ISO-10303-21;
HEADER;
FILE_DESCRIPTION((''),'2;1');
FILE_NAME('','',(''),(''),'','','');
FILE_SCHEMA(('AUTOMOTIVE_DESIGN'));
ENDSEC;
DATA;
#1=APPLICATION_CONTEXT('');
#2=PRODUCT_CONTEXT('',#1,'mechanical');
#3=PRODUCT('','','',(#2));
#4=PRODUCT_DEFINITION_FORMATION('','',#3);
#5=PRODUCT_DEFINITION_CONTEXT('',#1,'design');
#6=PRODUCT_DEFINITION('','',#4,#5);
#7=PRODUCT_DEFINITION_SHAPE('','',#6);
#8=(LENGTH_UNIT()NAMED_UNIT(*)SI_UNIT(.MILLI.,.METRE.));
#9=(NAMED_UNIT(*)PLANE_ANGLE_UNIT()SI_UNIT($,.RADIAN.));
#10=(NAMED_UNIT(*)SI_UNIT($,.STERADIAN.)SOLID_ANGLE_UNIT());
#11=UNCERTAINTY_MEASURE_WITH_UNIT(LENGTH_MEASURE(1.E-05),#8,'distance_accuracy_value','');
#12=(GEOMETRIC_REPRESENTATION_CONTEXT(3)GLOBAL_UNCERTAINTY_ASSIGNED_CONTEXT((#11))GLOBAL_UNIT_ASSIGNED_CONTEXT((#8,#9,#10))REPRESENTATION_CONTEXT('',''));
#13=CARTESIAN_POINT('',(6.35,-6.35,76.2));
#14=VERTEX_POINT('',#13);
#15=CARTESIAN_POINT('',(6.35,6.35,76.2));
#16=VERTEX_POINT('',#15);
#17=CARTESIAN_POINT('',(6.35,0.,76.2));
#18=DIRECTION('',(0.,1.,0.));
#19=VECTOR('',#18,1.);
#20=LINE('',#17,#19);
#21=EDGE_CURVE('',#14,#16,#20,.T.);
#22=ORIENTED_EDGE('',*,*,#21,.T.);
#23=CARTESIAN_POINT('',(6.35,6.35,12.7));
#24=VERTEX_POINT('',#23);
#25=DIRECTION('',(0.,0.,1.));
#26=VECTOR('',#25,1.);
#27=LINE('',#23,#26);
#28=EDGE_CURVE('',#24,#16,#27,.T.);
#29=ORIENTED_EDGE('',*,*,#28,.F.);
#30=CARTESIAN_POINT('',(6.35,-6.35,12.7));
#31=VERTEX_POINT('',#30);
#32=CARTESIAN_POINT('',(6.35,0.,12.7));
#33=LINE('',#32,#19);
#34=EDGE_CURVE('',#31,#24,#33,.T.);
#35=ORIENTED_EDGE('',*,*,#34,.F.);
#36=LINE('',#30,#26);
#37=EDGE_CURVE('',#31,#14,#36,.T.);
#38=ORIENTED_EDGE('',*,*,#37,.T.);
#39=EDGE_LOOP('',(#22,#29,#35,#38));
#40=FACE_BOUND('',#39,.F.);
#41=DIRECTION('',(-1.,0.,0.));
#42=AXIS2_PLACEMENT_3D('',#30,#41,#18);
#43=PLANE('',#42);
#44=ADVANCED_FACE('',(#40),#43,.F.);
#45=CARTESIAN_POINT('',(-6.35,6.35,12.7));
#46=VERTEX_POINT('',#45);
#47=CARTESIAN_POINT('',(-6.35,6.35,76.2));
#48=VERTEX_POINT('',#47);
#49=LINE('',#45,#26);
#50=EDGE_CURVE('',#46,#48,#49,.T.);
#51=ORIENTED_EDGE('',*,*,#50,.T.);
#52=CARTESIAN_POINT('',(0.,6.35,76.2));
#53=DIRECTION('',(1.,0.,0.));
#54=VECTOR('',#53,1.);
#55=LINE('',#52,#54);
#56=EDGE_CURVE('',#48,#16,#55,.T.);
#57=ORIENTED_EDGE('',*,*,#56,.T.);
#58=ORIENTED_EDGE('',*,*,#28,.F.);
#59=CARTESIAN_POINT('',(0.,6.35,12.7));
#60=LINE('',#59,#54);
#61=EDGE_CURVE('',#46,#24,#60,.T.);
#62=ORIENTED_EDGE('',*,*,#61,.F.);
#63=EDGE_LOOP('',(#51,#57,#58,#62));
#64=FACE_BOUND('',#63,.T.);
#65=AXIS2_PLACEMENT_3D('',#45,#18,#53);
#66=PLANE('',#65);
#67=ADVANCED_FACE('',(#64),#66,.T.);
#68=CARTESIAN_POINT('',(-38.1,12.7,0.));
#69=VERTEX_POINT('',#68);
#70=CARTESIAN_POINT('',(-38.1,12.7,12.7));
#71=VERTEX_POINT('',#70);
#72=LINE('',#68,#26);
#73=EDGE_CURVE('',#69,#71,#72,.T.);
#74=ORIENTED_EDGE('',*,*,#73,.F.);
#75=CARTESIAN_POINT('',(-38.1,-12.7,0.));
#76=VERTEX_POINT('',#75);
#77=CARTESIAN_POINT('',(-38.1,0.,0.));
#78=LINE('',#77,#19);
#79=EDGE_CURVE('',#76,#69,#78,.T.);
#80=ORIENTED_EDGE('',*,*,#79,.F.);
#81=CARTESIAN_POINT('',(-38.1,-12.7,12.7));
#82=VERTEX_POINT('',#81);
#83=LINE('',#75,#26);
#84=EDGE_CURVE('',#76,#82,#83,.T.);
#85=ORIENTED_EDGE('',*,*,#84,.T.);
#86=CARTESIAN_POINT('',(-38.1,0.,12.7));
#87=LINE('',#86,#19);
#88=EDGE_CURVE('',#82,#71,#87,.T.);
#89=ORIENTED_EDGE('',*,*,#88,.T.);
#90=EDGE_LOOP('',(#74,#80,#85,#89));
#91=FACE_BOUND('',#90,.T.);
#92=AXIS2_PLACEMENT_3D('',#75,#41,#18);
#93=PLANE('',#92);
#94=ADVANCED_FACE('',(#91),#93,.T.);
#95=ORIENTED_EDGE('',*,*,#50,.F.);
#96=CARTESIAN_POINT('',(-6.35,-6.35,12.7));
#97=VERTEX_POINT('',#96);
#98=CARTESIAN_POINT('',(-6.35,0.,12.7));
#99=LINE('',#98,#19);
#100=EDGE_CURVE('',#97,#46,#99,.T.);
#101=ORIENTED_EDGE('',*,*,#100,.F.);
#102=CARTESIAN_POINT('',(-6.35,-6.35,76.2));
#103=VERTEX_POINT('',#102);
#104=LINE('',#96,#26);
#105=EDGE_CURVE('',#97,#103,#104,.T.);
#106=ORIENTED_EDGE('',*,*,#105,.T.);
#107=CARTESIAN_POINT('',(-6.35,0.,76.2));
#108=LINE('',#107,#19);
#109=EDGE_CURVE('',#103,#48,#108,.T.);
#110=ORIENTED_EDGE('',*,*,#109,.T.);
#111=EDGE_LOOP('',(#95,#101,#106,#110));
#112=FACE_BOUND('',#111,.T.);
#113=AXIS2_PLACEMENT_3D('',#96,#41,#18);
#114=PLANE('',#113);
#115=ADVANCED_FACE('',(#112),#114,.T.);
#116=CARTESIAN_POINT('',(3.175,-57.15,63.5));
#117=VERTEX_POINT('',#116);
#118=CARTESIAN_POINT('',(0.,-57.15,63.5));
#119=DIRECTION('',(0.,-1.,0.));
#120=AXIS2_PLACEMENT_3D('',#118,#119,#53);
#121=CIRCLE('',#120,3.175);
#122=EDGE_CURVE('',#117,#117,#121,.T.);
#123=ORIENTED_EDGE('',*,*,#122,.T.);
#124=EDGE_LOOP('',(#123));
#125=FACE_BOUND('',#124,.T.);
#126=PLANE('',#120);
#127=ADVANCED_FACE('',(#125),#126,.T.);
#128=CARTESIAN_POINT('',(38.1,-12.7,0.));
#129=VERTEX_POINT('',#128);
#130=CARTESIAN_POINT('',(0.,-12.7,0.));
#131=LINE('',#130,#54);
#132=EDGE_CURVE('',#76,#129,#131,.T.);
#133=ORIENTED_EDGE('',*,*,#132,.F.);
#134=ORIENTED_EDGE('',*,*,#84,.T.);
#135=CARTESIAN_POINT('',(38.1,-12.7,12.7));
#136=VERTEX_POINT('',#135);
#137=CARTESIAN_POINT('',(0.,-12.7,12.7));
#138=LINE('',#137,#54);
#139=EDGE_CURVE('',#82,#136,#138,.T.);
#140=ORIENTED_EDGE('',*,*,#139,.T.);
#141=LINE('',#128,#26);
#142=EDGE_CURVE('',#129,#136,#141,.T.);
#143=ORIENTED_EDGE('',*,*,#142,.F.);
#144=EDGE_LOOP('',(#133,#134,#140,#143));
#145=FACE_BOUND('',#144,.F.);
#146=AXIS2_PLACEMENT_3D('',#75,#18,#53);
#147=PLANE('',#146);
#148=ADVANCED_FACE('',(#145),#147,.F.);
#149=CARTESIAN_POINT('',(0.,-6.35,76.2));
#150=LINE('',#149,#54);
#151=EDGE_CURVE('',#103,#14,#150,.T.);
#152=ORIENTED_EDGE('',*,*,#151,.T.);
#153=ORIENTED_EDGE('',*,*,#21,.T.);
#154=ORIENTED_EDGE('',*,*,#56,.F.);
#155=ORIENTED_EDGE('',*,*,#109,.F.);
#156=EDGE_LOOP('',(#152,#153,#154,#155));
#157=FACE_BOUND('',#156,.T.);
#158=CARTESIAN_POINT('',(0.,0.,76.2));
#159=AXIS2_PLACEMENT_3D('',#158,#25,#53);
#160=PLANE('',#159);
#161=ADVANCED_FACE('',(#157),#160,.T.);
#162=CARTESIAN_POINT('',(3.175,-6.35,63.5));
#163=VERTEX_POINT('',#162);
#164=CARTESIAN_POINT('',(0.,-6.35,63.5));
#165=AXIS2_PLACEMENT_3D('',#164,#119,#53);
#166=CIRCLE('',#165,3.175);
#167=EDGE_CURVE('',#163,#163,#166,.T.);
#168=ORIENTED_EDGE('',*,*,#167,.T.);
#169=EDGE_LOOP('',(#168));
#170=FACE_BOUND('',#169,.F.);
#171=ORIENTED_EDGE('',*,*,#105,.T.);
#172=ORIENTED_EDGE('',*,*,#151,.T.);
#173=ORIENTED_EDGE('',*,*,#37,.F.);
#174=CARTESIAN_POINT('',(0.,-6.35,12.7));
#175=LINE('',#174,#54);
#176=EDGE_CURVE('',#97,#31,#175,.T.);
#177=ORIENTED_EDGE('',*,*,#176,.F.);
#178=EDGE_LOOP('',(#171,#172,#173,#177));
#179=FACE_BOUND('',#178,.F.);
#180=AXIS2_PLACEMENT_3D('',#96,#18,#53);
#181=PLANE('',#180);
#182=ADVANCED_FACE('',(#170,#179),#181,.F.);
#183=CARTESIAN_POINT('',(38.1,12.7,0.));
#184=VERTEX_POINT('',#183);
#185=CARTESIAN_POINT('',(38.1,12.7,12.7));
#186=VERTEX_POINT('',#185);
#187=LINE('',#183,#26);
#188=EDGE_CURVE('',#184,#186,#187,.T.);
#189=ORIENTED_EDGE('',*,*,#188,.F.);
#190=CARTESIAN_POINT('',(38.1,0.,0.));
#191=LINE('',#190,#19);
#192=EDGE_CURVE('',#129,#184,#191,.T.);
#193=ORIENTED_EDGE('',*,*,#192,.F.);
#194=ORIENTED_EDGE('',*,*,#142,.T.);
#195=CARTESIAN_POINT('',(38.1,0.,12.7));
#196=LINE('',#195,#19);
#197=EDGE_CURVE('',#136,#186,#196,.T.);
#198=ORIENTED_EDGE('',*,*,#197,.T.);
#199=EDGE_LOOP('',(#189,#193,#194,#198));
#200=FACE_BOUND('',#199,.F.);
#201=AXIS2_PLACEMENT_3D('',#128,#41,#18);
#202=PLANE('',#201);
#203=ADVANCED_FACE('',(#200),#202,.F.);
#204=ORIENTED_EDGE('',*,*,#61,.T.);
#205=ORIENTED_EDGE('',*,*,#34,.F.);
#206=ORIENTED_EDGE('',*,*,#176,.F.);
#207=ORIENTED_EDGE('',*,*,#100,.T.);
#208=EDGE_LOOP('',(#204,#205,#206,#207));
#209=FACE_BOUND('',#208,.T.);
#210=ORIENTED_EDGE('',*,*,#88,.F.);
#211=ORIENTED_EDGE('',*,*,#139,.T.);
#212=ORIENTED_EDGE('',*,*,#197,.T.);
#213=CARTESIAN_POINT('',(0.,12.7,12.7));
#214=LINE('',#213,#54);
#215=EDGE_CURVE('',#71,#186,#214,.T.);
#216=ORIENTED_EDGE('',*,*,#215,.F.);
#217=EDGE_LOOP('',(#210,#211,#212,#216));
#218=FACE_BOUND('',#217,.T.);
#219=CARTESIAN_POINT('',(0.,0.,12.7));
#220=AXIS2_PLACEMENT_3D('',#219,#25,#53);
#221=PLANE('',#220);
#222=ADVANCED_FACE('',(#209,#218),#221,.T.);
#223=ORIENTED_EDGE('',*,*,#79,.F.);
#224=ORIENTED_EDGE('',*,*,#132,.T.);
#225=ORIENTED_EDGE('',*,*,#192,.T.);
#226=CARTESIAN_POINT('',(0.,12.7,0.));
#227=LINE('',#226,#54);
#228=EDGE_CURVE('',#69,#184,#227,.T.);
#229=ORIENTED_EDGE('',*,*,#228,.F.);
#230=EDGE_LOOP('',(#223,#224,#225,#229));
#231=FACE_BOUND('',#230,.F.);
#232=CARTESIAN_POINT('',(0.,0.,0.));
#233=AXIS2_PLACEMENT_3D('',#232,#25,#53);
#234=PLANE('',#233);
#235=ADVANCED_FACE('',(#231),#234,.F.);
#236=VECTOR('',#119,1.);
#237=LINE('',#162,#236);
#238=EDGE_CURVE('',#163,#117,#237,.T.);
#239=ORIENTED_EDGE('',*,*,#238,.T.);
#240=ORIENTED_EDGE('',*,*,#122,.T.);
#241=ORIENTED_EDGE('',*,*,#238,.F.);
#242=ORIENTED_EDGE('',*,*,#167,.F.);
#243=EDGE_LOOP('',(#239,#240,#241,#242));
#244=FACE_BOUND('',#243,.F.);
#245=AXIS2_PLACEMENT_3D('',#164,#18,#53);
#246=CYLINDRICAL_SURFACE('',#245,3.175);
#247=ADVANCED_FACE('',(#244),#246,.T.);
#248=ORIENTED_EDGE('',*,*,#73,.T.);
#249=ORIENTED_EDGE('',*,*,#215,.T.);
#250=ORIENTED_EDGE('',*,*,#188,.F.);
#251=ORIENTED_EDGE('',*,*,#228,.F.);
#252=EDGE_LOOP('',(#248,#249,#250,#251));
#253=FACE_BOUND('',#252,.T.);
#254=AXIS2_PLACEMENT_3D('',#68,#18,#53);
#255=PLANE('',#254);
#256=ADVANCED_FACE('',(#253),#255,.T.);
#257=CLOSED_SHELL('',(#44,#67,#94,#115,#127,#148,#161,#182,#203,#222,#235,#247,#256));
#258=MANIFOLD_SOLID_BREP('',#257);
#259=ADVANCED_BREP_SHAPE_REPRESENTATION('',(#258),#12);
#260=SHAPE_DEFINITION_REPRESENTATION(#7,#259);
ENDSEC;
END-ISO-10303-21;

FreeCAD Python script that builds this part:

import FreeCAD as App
import Part
import Sketcher

V = App.Vector
Q = App.Units.Quantity

doc = App.newDocument("Part")
body = doc.addObject("PartDesign::Body", "Body")

# Sketch on XY plane
sketch1 = body.newObject("Sketcher::SketchObject", "Sketch")
sketch1.AttachmentSupport = (doc.getObject("XY_Plane"), [""])
sketch1.MapMode = "FlatFace"
sketch1.addGeometry(Part.LineSegment(V(-38, 13, 0), V(-38, -13, 0)), False)
sketch1.addGeometry(Part.LineSegment(V(-38, -13, 0), V(38, -13, 0)), False)
sketch1.addGeometry(Part.LineSegment(V(38, -13, 0), V(38, 13, 0)), False)
sketch1.addGeometry(Part.LineSegment(V(38, 13, 0), V(-38, 13, 0)), False)
sketch1.addConstraint(Sketcher.Constraint("Coincident", 0, 2, 1, 1))
sketch1.addConstraint(Sketcher.Constraint("Coincident", 1, 2, 2, 1))
sketch1.addConstraint(Sketcher.Constraint("Coincident", 2, 2, 3, 1))
sketch1.addConstraint(Sketcher.Constraint("Coincident", 3, 2, 0, 1))
sketch1.addConstraint(Sketcher.Constraint("Vertical", 0))
sketch1.addConstraint(Sketcher.Constraint("Horizontal", 1))
sketch1.addConstraint(Sketcher.Constraint("Vertical", 2))
sketch1.addConstraint(Sketcher.Constraint("Horizontal", 3))
sketch1.addConstraint(Sketcher.Constraint("Symmetric", 0, 2, 2, 2, -1, 1))
sketch1.addConstraint(Sketcher.Constraint("DistanceX", 1, 1, 1, 2, Q("3 in")))
sketch1.addConstraint(Sketcher.Constraint("DistanceY", 0, 2, 0, 1, Q("1 in")))
pad1 = body.newObject("PartDesign::Pad", "Pad")
pad1.Profile = sketch1
pad1.Length = Q("0.5 in")

# Sketch on XY plane
sketch2 = body.newObject("Sketcher::SketchObject", "Sketch001")
sketch2.AttachmentSupport = (doc.getObject("XY_Plane"), [""])
sketch2.MapMode = "FlatFace"
sketch2.AttachmentOffset = App.Placement(V(0, 0, 0.5 * 25.4), App.Rotation())
sketch2.addGeometry(Part.LineSegment(V(-6, 6, 0), V(-6, -6, 0)), False)
sketch2.addGeometry(Part.LineSegment(V(-6, -6, 0), V(6, -6, 0)), False)
sketch2.addGeometry(Part.LineSegment(V(6, -6, 0), V(6, 6, 0)), False)
sketch2.addGeometry(Part.LineSegment(V(6, 6, 0), V(-6, 6, 0)), False)
sketch2.addConstraint(Sketcher.Constraint("Coincident", 0, 2, 1, 1))
sketch2.addConstraint(Sketcher.Constraint("Coincident", 1, 2, 2, 1))
sketch2.addConstraint(Sketcher.Constraint("Coincident", 2, 2, 3, 1))
sketch2.addConstraint(Sketcher.Constraint("Coincident", 3, 2, 0, 1))
sketch2.addConstraint(Sketcher.Constraint("Vertical", 0))
sketch2.addConstraint(Sketcher.Constraint("Horizontal", 1))
sketch2.addConstraint(Sketcher.Constraint("Vertical", 2))
sketch2.addConstraint(Sketcher.Constraint("Horizontal", 3))
sketch2.addConstraint(Sketcher.Constraint("Symmetric", 0, 2, 2, 2, -1, 1))
sketch2.addConstraint(Sketcher.Constraint("Equal", 3, 0))
sketch2.addConstraint(Sketcher.Constraint("DistanceX", 1, 1, 1, 2, Q("0.5 in")))
pad2 = body.newObject("PartDesign::Pad", "Pad001")
pad2.Profile = sketch2
pad2.Length = Q("2.5 in")

# Sketch on XZ plane
sketch3 = body.newObject("Sketcher::SketchObject", "Sketch002")
sketch3.AttachmentSupport = (doc.getObject("XZ_Plane"), [""])
sketch3.MapMode = "FlatFace"
sketch3.AttachmentOffset = App.Placement(V(0, 0, 0.25 * 25.4), App.Rotation())
sketch3.addGeometry(Part.Circle(V(0, 63.5, 0), V(0, 0, 1), 3.2), False)
sketch3.addConstraint(Sketcher.Constraint("PointOnObject", 0, 3, -2))
sketch3.addConstraint(Sketcher.Constraint("Diameter", 0, Q("0.25 in")))
sketch3.addConstraint(Sketcher.Constraint("DistanceY", -1, 1, 0, 3, Q("2.5 in")))
pad3 = body.newObject("PartDesign::Pad", "Pad002")
pad3.Profile = sketch3
pad3.Length = Q("2 in")

doc.recompute()
